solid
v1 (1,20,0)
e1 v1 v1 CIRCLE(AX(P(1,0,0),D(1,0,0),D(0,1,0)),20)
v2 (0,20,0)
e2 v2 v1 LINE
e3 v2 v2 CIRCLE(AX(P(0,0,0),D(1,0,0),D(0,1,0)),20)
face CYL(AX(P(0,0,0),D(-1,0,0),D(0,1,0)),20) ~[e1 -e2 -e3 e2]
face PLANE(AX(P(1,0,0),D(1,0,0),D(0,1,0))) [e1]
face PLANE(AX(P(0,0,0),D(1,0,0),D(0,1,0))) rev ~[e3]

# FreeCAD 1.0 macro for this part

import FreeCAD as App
import Part
import Sketcher
from FreeCAD import Vector

doc = App.newDocument("Part")
body = doc.addObject("PartDesign::Body", "Body")

# Sketch on YZ plane
sketch1 = body.newObject("Sketcher::SketchObject", "Sketch")
sketch1.AttachmentSupport = (doc.getObject("YZ_Plane"), [""])
sketch1.MapMode = "FlatFace"
sketch1.addGeometry(Part.Circle(Vector(0, 0, 0), Vector(0, 0, 1), 20), False)
sketch1.addConstraint([
    Sketcher.Constraint("Coincident", 0, 3, -1, 1),
    Sketcher.Constraint("Diameter", 0, 40.0),
])
pad1 = body.newObject("PartDesign::Pad", "Pad")
pad1.Profile = sketch1
pad1.Length = 1

doc.recompute()
